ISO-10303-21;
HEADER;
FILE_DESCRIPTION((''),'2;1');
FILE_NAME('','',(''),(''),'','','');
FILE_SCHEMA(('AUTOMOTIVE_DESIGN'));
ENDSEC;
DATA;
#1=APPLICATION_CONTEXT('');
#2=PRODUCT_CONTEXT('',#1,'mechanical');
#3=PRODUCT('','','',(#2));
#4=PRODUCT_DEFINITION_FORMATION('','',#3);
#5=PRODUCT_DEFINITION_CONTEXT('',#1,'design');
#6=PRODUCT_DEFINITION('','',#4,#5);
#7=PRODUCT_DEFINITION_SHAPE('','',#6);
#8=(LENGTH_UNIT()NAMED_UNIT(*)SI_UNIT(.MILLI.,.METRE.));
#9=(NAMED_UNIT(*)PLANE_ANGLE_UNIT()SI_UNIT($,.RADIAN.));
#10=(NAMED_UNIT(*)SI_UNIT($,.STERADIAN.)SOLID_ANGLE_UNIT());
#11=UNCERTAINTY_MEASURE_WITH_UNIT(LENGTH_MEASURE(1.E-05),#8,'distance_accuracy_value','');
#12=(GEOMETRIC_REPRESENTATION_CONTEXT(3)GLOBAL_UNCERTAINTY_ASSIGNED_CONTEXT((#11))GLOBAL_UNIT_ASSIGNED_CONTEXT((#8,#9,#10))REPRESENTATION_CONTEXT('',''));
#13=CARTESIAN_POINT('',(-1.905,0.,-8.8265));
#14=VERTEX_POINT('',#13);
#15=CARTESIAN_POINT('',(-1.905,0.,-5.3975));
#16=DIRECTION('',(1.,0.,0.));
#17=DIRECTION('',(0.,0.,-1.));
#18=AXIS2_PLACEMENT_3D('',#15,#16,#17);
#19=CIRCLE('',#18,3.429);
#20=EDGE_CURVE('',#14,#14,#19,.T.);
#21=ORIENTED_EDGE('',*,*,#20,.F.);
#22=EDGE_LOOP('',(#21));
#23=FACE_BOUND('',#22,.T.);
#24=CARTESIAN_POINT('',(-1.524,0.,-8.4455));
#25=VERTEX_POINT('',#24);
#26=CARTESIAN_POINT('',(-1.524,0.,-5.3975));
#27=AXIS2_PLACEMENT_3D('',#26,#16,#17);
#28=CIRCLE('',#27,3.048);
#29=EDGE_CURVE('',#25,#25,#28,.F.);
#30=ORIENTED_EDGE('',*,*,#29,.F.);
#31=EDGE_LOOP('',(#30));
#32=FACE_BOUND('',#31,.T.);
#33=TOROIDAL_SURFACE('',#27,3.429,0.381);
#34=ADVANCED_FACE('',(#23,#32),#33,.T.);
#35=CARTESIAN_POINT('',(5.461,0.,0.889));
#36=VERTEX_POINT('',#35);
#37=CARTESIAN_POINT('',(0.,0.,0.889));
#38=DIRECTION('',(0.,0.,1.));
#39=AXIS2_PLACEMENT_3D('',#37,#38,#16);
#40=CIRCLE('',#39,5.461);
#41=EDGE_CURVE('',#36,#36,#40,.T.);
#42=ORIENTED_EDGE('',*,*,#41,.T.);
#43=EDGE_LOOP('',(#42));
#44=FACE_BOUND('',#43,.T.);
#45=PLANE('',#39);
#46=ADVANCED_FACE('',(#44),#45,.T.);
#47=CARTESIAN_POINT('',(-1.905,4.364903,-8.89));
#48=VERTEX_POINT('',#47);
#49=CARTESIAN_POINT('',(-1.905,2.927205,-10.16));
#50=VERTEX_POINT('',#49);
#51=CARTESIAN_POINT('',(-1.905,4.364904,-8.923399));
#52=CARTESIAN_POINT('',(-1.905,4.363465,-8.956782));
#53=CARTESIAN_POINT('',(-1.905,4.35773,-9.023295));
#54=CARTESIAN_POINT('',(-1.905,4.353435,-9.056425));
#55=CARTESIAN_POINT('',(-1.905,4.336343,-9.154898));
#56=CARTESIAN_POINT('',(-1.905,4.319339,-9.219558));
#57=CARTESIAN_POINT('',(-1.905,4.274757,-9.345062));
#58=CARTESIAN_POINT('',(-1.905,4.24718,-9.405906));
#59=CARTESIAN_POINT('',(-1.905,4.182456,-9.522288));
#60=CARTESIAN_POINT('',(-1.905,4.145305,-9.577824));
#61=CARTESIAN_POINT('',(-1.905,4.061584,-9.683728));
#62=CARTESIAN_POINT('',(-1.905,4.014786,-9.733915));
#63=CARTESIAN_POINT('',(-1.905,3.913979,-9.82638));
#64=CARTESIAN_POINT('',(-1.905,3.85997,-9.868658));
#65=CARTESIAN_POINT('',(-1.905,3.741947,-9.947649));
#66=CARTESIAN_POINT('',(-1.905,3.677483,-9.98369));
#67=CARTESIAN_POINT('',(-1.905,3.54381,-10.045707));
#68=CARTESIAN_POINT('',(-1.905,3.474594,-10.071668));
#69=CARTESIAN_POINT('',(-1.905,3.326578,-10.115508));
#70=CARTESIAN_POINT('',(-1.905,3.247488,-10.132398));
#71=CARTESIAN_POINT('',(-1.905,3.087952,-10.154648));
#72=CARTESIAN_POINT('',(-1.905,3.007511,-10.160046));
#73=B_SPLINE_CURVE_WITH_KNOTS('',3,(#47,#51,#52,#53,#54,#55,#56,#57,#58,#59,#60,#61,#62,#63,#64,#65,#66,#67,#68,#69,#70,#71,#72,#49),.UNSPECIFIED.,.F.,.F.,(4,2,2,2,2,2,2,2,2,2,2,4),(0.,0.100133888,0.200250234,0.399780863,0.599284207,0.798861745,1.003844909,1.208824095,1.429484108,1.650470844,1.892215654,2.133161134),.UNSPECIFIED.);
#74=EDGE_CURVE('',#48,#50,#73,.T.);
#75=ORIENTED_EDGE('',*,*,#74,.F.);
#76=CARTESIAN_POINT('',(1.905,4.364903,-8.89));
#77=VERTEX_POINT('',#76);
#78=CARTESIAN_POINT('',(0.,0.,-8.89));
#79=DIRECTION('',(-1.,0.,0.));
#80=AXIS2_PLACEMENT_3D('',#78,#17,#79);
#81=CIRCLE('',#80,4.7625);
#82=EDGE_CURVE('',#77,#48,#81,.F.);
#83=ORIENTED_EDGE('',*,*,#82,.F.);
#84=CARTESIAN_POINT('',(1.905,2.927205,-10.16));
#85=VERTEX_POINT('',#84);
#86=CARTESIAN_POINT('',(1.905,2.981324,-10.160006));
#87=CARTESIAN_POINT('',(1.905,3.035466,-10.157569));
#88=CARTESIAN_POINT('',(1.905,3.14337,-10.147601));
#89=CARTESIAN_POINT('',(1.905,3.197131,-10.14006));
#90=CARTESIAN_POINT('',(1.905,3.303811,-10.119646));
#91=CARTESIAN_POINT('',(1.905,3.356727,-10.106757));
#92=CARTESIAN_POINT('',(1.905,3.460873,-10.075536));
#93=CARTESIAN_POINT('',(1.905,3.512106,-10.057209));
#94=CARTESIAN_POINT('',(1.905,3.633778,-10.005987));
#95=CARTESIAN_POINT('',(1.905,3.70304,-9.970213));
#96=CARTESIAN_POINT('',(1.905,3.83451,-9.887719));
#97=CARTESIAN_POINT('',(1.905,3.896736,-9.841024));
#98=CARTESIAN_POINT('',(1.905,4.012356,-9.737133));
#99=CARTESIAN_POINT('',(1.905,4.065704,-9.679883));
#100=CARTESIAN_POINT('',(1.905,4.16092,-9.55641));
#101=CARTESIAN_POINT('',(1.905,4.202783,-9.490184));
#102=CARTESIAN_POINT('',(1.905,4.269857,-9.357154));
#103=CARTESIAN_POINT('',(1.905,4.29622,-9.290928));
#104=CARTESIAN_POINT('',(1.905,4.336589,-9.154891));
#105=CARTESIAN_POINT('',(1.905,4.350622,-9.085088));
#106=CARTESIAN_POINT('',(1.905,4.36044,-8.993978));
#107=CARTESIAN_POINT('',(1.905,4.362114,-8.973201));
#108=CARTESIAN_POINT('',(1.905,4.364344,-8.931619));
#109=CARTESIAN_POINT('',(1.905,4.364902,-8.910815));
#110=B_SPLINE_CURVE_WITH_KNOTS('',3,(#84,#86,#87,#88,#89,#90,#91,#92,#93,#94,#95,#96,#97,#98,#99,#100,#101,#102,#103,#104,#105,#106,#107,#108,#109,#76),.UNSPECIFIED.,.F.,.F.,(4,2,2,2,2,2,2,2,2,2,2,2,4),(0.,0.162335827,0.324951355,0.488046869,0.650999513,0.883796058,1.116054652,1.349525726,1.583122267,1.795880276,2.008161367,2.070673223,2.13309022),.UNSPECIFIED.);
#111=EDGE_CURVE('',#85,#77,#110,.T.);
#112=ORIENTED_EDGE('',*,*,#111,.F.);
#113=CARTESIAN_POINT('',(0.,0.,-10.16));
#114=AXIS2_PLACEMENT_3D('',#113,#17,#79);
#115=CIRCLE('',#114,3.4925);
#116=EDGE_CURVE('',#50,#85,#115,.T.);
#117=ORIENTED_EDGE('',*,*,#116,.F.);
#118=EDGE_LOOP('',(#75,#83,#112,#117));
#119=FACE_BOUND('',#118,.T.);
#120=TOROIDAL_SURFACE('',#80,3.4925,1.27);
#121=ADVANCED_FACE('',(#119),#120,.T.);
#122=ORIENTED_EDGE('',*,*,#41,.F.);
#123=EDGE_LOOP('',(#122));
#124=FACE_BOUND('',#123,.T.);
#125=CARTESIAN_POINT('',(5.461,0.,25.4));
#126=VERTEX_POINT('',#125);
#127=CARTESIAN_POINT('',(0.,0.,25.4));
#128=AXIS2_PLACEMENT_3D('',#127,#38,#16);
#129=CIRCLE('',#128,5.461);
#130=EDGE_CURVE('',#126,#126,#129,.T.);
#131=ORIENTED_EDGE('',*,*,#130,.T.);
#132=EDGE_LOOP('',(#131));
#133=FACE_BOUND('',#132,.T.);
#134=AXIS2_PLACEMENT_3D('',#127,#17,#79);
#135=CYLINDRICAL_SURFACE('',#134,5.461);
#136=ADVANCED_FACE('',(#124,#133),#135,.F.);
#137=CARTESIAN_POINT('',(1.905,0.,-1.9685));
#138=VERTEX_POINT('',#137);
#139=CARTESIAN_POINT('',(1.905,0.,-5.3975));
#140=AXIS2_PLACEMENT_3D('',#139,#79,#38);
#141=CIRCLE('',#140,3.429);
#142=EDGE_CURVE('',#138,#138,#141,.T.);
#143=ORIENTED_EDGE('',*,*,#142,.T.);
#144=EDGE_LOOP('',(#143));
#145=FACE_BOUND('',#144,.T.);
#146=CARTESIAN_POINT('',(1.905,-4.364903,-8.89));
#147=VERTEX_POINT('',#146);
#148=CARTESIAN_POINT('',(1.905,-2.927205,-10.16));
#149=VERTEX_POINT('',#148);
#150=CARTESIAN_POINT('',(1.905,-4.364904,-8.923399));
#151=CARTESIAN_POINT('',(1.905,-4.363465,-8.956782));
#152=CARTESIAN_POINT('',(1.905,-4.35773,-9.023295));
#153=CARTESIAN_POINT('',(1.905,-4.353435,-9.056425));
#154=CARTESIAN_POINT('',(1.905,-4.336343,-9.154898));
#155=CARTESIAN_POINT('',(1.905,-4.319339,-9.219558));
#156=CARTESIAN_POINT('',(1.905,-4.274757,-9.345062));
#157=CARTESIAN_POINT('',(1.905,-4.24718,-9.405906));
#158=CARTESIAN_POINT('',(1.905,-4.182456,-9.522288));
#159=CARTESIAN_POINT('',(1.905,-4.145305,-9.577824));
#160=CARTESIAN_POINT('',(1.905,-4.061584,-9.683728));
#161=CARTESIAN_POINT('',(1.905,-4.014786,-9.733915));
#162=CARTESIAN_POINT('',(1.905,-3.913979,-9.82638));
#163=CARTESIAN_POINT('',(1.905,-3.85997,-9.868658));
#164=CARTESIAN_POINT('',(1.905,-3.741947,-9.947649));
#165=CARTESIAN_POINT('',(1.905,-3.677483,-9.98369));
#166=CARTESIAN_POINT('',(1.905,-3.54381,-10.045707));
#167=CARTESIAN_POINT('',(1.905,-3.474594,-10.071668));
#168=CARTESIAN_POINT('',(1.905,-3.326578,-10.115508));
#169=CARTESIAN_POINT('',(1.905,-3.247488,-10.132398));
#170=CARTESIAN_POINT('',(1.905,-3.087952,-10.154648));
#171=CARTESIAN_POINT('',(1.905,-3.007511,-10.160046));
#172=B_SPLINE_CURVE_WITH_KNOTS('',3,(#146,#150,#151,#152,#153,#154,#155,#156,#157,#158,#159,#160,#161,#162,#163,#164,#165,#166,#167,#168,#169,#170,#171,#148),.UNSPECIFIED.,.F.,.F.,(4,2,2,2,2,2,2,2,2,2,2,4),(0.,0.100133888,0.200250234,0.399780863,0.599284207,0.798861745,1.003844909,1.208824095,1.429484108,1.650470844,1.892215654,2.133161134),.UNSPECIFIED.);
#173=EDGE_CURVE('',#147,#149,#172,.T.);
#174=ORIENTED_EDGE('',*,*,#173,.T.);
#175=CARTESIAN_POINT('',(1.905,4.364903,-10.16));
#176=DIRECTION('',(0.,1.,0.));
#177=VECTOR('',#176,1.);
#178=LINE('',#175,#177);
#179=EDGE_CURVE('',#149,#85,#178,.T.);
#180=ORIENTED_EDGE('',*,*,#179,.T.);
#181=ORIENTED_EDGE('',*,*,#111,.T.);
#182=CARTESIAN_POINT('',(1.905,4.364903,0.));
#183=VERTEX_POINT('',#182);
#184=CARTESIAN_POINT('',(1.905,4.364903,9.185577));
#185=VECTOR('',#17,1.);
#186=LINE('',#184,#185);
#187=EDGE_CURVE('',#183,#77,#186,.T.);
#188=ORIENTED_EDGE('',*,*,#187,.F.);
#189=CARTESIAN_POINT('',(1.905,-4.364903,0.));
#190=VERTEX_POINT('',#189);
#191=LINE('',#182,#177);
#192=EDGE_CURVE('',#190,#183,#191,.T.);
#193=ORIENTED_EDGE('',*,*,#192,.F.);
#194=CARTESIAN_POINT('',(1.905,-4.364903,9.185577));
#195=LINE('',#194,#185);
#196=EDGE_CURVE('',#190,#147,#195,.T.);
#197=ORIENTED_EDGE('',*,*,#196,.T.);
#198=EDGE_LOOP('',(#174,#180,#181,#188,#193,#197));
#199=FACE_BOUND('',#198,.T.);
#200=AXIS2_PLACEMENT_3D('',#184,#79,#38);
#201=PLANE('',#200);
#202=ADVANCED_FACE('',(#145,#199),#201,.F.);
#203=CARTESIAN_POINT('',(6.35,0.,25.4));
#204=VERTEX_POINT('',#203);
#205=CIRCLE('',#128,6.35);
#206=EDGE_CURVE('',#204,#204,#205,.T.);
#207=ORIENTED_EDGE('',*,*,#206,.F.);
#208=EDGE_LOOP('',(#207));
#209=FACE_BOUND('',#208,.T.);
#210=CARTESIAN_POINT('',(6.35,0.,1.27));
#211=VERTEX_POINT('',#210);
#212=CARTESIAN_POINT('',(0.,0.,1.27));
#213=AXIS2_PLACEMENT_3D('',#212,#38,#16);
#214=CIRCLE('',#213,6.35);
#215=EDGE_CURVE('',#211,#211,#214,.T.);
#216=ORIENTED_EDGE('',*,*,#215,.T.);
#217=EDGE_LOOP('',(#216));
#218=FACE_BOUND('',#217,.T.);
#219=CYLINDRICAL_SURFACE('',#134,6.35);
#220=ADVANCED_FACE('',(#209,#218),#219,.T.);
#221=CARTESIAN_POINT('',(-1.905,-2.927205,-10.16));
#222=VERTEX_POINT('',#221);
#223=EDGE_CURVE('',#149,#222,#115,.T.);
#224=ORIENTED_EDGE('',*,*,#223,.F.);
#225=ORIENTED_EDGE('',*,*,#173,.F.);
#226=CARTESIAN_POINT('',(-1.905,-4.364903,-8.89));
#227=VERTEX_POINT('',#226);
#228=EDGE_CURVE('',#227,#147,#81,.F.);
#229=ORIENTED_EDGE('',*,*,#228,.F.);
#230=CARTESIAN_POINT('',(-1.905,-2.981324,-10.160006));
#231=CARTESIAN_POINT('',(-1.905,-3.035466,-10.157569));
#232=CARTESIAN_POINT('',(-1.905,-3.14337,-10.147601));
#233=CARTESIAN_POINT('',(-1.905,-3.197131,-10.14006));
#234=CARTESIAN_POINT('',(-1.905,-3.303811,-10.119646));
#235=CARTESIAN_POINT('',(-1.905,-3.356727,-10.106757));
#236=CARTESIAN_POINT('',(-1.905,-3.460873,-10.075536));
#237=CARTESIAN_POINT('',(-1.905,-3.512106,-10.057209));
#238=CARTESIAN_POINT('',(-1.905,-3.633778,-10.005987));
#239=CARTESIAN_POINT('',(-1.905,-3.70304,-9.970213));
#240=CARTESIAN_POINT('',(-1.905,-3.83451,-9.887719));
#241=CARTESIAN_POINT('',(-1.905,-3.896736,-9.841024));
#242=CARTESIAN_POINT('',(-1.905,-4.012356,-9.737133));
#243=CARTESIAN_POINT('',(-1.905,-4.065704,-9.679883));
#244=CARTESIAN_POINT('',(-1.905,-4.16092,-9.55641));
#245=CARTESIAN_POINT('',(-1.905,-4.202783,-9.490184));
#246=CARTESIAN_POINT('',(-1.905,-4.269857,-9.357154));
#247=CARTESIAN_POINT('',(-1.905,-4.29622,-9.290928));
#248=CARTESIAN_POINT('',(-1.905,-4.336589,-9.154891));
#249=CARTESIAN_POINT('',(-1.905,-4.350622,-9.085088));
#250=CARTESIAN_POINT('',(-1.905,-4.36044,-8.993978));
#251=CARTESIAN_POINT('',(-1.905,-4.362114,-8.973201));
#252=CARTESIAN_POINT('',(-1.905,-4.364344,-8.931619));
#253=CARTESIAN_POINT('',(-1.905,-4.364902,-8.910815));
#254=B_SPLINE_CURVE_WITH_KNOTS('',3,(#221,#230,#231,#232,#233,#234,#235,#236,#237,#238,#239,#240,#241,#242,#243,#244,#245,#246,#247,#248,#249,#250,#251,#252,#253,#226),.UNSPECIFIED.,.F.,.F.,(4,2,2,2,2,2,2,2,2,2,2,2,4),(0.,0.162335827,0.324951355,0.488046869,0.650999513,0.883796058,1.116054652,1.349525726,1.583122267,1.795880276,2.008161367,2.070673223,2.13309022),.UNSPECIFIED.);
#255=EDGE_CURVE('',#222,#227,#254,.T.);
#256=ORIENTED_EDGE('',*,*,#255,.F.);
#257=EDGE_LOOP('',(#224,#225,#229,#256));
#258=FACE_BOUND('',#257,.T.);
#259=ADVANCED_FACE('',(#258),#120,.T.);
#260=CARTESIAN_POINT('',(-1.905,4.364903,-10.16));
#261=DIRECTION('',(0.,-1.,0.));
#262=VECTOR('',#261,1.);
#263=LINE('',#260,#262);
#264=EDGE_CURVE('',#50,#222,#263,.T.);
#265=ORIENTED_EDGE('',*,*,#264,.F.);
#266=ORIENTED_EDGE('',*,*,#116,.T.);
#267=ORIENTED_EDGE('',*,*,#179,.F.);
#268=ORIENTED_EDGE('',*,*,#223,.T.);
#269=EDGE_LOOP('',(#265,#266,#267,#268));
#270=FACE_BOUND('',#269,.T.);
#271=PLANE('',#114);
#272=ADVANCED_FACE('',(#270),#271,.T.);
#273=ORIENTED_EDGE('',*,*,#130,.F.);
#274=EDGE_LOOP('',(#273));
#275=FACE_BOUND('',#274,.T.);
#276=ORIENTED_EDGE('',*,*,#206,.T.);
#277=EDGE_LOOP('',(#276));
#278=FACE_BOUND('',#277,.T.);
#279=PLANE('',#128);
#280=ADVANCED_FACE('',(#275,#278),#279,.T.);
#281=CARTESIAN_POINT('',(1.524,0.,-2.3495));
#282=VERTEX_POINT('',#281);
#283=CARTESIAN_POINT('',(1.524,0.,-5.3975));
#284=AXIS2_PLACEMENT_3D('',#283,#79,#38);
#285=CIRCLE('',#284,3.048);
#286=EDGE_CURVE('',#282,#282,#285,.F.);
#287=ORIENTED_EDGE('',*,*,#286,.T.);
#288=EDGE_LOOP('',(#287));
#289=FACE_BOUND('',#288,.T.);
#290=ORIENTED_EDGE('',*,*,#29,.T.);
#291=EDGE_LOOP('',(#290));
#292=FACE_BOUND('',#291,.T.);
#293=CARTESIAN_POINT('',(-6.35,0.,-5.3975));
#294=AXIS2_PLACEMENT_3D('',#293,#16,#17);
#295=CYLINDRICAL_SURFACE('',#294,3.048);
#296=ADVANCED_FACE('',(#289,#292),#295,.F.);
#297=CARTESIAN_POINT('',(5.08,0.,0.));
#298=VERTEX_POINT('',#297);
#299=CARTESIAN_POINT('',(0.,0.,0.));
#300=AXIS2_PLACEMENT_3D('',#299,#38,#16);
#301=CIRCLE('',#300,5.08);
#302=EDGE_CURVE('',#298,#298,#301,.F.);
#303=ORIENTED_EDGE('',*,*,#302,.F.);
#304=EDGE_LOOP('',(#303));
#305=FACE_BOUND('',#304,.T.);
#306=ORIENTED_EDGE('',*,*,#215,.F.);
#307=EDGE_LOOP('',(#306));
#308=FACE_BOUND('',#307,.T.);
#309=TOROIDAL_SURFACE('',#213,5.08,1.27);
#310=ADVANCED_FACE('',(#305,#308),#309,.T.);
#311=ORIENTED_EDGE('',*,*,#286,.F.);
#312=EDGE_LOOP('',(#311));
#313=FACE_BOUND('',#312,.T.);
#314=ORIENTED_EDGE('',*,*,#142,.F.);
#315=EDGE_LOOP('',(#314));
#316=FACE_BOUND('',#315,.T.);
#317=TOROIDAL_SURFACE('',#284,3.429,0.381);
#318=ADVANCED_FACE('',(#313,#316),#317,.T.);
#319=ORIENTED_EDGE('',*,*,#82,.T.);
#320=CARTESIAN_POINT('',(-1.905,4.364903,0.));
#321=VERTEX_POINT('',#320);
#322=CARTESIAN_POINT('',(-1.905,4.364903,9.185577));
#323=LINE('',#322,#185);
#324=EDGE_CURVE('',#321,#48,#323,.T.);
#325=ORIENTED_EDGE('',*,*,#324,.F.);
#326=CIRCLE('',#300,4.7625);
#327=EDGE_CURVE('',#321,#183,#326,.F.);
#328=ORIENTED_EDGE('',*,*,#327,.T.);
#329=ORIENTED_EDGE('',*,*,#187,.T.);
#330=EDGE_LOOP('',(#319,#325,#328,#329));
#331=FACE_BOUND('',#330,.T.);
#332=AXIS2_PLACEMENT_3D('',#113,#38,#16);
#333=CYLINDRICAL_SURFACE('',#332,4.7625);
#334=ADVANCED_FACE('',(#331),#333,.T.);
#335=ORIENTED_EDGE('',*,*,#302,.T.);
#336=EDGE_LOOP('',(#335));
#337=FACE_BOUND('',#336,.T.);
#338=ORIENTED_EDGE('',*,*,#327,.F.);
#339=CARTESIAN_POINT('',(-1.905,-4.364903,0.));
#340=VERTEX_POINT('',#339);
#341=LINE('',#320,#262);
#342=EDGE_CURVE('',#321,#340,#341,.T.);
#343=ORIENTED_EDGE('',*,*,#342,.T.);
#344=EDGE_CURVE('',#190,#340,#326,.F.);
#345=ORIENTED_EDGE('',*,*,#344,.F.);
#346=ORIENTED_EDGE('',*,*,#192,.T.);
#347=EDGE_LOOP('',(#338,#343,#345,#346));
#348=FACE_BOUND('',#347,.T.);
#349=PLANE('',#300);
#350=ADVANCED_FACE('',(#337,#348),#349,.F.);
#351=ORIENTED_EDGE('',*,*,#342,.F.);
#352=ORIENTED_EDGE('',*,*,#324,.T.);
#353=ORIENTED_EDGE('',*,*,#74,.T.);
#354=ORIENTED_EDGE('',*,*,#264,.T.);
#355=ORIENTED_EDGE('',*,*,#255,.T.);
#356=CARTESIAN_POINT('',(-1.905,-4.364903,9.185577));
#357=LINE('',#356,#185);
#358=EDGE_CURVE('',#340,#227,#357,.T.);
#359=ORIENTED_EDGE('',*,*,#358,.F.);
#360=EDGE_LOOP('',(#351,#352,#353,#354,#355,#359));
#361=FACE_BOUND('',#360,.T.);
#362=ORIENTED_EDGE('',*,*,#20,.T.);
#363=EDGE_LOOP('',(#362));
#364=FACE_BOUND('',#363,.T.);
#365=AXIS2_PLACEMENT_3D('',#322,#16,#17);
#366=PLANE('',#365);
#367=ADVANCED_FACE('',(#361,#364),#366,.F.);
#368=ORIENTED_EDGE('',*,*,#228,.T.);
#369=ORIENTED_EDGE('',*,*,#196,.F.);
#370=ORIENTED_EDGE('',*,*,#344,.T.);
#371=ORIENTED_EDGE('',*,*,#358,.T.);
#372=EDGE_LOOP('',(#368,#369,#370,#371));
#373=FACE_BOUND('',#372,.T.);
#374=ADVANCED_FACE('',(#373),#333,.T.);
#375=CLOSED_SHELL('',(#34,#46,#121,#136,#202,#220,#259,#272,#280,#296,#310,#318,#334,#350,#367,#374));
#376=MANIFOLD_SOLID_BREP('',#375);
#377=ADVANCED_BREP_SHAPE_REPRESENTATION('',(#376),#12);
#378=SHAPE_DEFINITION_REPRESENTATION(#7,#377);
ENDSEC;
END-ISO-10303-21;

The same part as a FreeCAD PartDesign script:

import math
import FreeCAD as App
import Part
import Sketcher
Q = App.Units.Quantity


def edges_at(feature, points):
    """Names of the edges that pass closest to the given points."""
    edges = feature.Shape.Edges
    near = lambda p: min(range(len(edges)), key=lambda i: edges[i].distToShape(Part.Vertex(*p))[0])
    return sorted({f"Edge{near(p) + 1}" for p in points})


def faces_at(feature, points):
    """Names of the faces that lie closest to the given points."""
    faces = feature.Shape.Faces
    near = lambda p: min(range(len(faces)), key=lambda i: faces[i].distToShape(Part.Vertex(*p))[0])
    return sorted({f"Face{near(p) + 1}" for p in points})

doc = App.newDocument("Part")
body = doc.addObject("PartDesign::Body", "Body")

# Sketch on XY plane
sketch1 = body.newObject("Sketcher::SketchObject", "Sketch")
sketch1.AttachmentSupport = (doc.getObject("XY_Plane"), [""])
sketch1.MapMode = "FlatFace"
sketch1.addGeometry(Part.Circle(App.Vector(0, 0, 0), App.Vector(0, 0, 1), 6), False)
sketch1.addConstraint([
    Sketcher.Constraint("Coincident", 0, 3, -1, 1),
    Sketcher.Constraint("Diameter", 0, Q("0.5 in")),
])
pad1 = body.newObject("PartDesign::Pad", "Pad")
pad1.Profile = sketch1
pad1.Length = Q("1 in")
doc.recompute()

thickness = body.newObject("PartDesign::Thickness", "Thickness")
thickness.Base = (pad1, faces_at(pad1, [(0, 0, 25.4)]))
thickness.Value = Q("0.035 in")
thickness.Reversed = True
thickness.Join = "Intersection"
doc.recompute()

fillet = body.newObject("PartDesign::Fillet", "Fillet")
fillet.Base = (thickness, edges_at(thickness, [(-6.35, 0, 0)]))
fillet.Radius = Q("0.05 in")

# Sketch on XY plane
sketch2 = body.newObject("Sketcher::SketchObject", "Sketch001")
sketch2.AttachmentSupport = (doc.getObject("XY_Plane"), [""])
sketch2.MapMode = "FlatFace"
sketch2.addGeometry(Part.Circle(App.Vector(0, 0, 0), App.Vector(0, 0, 1), 4.8), False)
sketch2.addConstraint([
    Sketcher.Constraint("Coincident", 0, 3, -1, 1),
    Sketcher.Constraint("Diameter", 0, Q("0.375 in")),
])
pad2 = body.newObject("PartDesign::Pad", "Pad001")
pad2.Profile = sketch2
pad2.Length = Q("0.4 in")
pad2.Reversed = True

# Sketch on XY plane
sketch3 = body.newObject("Sketcher::SketchObject", "Sketch002")
sketch3.AttachmentSupport = (doc.getObject("XY_Plane"), [""])
sketch3.MapMode = "FlatFace"
sketch3.addGeometry([
    Part.LineSegment(App.Vector(1.9, -4.4, 0), App.Vector(1.9, 4.4, 0)),
    Part.ArcOfCircle(Part.Circle(App.Vector(0, 0, 0), App.Vector(0, 0, 1), 4.8), math.radians(-66), math.radians(66)),
    Part.LineSegment(App.Vector(-1.9, 4.4, 0), App.Vector(-1.9, -4.4, 0)),
    Part.ArcOfCircle(Part.Circle(App.Vector(0, 0, 0), App.Vector(0, 0, 1), 4.8), math.radians(114), math.radians(246)),
], False)
sketch3.addConstraint([
    Sketcher.Constraint("Coincident", 0, 1, 1, 1),
    Sketcher.Constraint("Coincident", 1, 2, 0, 2),
    Sketcher.Constraint("Coincident", 2, 1, 3, 1),
    Sketcher.Constraint("Coincident", 3, 2, 2, 2),
    Sketcher.Constraint("Vertical", 0),
    Sketcher.Constraint("Vertical", 2),
    Sketcher.Constraint("Coincident", 1, 3, -1, 1),
    Sketcher.Constraint("Coincident", 3, 3, -1, 1),
    Sketcher.Constraint("Equal", 1, 3),
    Sketcher.Constraint("Horizontal", 1, 2, 2, 1),
    Sketcher.Constraint("Radius", 1, Q("0.1875 in")),
    Sketcher.Constraint("DistanceX", 2, 1, 1, 2, Q("0.15 in")),
])
pocket1 = body.newObject("PartDesign::Pocket", "Pocket")
pocket1.Profile = sketch3
pocket1.Length = Q("0.4 in")

# Sketch on YZ plane
sketch4 = body.newObject("Sketcher::SketchObject", "Sketch003")
sketch4.AttachmentSupport = (doc.getObject("YZ_Plane"), [""])
sketch4.MapMode = "FlatFace"
sketch4.AttachmentOffset = App.Placement(App.Vector(0, 0, 0.075 * 25.4), App.Rotation())
sketch4.addGeometry(Part.Circle(App.Vector(0, -5.4, 0), App.Vector(0, 0, 1), 3), False)
sketch4.addConstraint([
    Sketcher.Constraint("PointOnObject", 0, 3, -2),
    Sketcher.Constraint("Diameter", 0, Q("0.24 in")),
    Sketcher.Constraint("DistanceY", 0, 3, -1, 1, Q("0.2125 in")),
])
pocket2 = body.newObject("PartDesign::Pocket", "Pocket001")
pocket2.Profile = sketch4
pocket2.Type = "ThroughAll"
doc.recompute()

fillet2 = body.newObject("PartDesign::Fillet", "Fillet001")
fillet2.Base = (pocket2, edges_at(pocket2, [(-1.905, 0, -2.349), (1.905, 0, -2.349)]))
fillet2.Radius = Q("0.015 in")
doc.recompute()

fillet3 = body.newObject("PartDesign::Fillet", "Fillet002")
fillet3.Base = (fillet2, edges_at(fillet2, [(0, 4.763, -10.16), (0, -4.763, -10.16)]))
fillet3.Radius = Q("0.05 in")

doc.recompute()
